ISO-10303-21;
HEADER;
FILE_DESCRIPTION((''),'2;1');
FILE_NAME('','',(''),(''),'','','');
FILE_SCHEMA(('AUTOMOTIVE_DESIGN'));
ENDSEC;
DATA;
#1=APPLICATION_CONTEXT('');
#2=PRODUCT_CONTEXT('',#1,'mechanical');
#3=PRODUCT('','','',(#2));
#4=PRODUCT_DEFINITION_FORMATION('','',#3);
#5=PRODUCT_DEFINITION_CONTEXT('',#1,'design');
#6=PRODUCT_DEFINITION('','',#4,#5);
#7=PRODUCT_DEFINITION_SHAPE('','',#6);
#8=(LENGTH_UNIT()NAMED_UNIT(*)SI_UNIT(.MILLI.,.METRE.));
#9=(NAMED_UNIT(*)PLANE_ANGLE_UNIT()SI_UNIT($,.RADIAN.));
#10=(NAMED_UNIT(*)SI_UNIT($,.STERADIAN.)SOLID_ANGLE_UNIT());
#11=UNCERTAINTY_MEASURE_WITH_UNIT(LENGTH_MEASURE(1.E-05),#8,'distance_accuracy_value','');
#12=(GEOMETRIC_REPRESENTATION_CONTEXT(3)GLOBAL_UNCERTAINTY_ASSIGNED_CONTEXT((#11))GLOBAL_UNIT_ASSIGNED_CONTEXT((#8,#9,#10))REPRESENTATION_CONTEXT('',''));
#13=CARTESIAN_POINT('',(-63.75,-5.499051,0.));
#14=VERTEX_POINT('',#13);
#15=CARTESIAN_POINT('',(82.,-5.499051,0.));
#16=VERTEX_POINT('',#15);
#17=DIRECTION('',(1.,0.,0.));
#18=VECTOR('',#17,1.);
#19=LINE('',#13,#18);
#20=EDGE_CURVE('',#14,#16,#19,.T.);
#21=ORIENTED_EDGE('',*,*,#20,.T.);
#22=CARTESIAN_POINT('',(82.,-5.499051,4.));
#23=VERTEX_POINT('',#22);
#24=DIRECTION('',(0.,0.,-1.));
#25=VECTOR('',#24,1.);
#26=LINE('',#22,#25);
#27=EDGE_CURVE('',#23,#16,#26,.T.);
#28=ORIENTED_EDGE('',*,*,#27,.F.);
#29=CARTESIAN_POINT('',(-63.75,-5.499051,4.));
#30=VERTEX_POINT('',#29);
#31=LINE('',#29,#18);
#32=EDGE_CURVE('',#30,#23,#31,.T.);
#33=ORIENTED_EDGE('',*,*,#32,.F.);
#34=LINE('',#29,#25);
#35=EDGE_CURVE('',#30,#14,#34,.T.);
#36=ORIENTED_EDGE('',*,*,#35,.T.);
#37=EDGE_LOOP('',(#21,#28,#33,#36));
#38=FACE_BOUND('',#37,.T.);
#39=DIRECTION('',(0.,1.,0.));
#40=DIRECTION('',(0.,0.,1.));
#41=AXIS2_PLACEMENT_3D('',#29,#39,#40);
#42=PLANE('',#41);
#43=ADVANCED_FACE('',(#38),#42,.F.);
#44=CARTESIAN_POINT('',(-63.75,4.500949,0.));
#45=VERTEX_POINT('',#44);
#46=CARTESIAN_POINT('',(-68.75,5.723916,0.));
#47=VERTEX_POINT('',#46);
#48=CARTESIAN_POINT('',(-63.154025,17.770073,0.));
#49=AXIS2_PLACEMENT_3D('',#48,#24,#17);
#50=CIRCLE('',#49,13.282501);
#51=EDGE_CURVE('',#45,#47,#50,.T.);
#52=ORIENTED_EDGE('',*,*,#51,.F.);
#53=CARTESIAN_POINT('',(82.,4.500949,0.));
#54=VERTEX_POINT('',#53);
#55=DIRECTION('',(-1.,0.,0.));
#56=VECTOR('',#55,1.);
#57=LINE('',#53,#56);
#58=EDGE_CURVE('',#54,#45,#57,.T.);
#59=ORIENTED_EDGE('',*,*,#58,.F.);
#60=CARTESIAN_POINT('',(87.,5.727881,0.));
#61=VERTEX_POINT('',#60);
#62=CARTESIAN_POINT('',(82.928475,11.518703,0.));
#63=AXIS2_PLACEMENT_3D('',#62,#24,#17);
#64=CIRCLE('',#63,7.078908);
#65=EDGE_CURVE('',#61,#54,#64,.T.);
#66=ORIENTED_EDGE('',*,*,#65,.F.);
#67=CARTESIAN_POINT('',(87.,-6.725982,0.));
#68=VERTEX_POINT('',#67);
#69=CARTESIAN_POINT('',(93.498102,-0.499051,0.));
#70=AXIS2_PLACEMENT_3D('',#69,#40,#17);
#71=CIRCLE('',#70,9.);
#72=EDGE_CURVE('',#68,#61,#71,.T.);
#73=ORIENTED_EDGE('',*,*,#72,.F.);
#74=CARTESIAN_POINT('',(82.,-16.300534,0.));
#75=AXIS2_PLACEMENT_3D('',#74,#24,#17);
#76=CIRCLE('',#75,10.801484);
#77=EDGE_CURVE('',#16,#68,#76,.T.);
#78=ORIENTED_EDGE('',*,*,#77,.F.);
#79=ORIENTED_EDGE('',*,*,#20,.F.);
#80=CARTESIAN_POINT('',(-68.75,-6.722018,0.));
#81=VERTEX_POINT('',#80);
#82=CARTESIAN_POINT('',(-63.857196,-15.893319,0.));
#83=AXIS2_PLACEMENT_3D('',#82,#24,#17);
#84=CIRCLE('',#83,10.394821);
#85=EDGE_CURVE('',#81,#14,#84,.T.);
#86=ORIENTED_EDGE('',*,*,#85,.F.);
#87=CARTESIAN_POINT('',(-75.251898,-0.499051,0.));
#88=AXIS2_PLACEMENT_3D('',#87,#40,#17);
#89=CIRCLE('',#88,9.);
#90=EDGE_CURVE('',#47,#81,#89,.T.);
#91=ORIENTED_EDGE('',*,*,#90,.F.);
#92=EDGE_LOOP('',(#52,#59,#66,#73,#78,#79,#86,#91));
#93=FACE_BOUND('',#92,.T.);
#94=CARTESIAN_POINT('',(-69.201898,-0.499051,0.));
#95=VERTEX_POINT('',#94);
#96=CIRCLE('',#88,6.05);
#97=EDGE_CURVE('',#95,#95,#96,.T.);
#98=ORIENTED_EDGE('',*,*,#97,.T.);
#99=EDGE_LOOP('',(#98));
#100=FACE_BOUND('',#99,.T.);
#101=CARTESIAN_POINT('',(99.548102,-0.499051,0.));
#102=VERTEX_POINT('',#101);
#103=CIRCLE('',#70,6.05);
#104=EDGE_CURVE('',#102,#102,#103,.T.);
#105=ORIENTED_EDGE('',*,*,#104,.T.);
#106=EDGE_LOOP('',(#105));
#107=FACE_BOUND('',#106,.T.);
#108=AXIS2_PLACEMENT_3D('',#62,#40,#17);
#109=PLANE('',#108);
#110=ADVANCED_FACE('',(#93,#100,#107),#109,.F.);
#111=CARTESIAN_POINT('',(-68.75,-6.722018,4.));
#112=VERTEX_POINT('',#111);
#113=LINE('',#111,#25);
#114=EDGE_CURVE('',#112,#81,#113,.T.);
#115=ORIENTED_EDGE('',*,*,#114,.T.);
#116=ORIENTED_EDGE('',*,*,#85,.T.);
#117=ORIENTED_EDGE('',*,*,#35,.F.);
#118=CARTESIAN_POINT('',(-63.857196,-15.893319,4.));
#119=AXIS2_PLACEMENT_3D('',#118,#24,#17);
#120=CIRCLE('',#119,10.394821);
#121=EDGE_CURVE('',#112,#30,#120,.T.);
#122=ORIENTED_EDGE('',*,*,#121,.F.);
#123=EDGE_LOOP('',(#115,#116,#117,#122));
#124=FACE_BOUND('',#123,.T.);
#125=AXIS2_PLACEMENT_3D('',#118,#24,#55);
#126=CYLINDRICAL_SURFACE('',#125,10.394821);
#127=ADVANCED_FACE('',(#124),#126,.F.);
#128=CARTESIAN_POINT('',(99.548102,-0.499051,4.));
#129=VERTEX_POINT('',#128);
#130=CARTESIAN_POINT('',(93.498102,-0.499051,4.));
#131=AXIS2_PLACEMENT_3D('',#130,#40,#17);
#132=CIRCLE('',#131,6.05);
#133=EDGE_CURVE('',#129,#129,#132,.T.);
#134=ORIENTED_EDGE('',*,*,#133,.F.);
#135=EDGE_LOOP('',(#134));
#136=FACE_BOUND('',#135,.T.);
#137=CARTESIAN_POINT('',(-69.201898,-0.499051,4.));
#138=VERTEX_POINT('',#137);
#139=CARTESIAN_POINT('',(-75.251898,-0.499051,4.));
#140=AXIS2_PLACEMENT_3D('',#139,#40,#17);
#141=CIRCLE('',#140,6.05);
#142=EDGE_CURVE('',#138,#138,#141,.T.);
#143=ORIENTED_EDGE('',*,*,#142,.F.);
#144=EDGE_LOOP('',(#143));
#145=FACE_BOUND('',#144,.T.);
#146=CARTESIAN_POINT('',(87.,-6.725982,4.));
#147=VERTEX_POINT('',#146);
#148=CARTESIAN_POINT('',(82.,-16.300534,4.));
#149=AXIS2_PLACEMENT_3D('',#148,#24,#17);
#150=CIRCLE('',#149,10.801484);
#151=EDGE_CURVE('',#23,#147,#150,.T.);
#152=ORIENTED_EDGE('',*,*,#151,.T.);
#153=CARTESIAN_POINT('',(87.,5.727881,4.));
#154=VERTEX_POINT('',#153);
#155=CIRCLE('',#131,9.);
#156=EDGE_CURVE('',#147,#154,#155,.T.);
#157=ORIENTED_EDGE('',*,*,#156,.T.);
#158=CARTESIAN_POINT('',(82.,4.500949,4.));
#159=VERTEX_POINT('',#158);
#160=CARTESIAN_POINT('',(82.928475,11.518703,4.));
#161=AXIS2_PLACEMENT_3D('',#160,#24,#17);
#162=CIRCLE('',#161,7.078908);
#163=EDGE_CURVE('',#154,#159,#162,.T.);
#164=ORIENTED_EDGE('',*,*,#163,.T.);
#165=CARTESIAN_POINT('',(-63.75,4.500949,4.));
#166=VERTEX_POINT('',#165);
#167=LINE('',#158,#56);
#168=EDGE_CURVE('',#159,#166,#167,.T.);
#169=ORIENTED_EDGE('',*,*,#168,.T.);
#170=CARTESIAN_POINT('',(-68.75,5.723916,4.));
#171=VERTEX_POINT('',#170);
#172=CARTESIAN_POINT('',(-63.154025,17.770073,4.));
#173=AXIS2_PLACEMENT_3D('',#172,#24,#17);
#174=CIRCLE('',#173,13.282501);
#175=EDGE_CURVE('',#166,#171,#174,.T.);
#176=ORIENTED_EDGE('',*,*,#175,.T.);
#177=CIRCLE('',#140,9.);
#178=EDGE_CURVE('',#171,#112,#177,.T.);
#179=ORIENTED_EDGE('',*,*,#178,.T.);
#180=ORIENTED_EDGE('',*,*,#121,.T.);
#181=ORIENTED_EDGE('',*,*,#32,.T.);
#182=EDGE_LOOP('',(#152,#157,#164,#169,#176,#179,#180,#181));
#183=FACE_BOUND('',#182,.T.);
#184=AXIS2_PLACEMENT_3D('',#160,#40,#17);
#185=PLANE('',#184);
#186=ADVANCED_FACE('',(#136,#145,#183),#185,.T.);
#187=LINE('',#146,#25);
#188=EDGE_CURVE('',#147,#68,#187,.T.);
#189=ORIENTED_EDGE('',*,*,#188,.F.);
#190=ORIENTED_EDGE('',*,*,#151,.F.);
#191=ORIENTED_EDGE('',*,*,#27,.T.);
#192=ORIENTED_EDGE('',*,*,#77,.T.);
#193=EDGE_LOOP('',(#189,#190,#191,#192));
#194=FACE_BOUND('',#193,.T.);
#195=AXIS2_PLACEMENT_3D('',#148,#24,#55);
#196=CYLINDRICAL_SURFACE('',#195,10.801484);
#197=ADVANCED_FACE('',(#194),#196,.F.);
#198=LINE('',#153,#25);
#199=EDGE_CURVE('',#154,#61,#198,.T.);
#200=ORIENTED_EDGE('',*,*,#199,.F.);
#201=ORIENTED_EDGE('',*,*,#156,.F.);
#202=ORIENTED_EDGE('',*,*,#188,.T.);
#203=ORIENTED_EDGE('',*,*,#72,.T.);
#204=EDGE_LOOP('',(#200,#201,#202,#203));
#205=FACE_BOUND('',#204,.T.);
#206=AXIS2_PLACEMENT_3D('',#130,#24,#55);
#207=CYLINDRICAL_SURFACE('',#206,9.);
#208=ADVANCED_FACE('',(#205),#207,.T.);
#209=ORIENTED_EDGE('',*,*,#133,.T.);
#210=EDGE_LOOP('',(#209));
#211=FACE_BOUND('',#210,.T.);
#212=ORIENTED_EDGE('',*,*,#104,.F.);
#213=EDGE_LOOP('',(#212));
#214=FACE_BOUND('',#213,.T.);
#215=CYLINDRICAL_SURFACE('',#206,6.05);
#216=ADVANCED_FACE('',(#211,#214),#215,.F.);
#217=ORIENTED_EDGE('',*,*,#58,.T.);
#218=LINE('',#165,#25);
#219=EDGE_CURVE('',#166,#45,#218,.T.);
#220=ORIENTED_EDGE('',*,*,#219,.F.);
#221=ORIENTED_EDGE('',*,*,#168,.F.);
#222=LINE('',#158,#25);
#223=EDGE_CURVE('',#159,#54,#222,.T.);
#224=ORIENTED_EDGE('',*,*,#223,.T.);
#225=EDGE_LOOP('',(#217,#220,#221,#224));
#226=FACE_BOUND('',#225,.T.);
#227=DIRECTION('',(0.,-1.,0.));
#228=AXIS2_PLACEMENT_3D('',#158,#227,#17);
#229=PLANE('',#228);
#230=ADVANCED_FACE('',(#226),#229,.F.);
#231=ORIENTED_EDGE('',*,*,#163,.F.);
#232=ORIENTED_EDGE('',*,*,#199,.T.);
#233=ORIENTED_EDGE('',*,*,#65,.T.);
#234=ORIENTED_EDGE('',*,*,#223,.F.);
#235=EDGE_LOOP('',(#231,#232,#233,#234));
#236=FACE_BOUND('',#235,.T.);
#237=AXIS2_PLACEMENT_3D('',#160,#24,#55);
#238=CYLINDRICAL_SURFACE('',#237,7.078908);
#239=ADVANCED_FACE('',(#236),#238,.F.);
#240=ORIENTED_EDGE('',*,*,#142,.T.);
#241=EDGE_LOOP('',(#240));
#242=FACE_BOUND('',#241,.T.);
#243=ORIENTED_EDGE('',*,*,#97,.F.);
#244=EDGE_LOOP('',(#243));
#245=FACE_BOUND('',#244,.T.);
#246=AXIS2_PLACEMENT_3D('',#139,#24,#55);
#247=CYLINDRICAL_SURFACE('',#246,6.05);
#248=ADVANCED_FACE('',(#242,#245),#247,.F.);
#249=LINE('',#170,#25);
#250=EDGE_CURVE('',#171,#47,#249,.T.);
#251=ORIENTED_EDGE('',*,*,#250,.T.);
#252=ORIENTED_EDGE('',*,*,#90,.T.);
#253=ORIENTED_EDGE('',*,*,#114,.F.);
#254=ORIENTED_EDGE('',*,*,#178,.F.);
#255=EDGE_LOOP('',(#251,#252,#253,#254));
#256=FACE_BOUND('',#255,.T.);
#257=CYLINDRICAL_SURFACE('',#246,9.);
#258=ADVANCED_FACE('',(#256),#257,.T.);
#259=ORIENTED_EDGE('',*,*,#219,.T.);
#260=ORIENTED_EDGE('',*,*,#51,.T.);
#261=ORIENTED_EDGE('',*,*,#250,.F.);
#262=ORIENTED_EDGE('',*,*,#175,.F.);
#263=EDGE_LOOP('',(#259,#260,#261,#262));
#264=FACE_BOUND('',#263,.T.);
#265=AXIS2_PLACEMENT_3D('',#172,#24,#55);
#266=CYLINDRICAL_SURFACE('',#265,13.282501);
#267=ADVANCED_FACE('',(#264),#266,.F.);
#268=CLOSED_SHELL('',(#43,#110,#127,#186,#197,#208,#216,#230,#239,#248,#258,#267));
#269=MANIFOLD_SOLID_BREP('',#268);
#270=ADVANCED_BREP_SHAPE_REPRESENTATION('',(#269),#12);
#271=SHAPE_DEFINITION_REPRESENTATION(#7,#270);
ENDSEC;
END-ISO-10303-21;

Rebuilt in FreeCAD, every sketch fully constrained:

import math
import FreeCAD as App
import Part
import Sketcher

doc = App.newDocument("Part")
body = doc.addObject("PartDesign::Body", "Body")

# Sketch on XY plane
sketch1 = doc.addObject("Sketcher::SketchObject", "Sketch")
body.addObject(sketch1)
sketch1.AttachmentSupport = (doc.XY_Plane, [""])
sketch1.MapMode = "FlatFace"
sketch1.addGeometry([
    Part.LineSegment(App.Vector(82, 4.500949, 0), App.Vector(-63.75, 4.500949, 0)),  # 0
    Part.ArcOfCircle(Part.Circle(App.Vector(-63.154025, 17.770073, 0), App.Vector(0, 0, 1), 13.282501), math.radians(-114.916962), math.radians(-92.571679)),  # 1
    Part.ArcOfCircle(Part.Circle(App.Vector(-75.251898, -0.499051, 0), App.Vector(0, 0, 1), 9), math.radians(43.744266), math.radians(316.255734)),  # 2
    Part.ArcOfCircle(Part.Circle(App.Vector(-63.857196, -15.893319, 0), App.Vector(0, 0, 1), 10.394821), math.radians(89.409132), math.radians(118.079508)),  # 3
    Part.LineSegment(App.Vector(-63.75, -5.499051, 0), App.Vector(82, -5.499051, 0)),  # 4
    Part.ArcOfCircle(Part.Circle(App.Vector(82, -16.300534, 0), App.Vector(0, 0, 1), 10.801484), math.radians(62.425642), math.radians(90)),  # 5
    Part.ArcOfCircle(Part.Circle(App.Vector(93.498102, -0.499051, 0), App.Vector(0, 0, 1), 9), math.radians(-136.220787), math.radians(136.220787)),  # 6
    Part.ArcOfCircle(Part.Circle(App.Vector(82.928475, 11.518703, 0), App.Vector(0, 0, 1), 7.078908), math.radians(-97.536678), math.radians(-54.888965)),  # 7
    Part.Circle(App.Vector(-75.251898, -0.499051, 0), App.Vector(0, 0, 1), 6.05),  # 8
    Part.Circle(App.Vector(93.498102, -0.499051, 0), App.Vector(0, 0, 1), 6.05),  # 9
], False)
sketch1.addConstraint([
    Sketcher.Constraint("Coincident", 0, 2, 1, 2),
    Sketcher.Constraint("Coincident", 1, 1, 2, 1),
    Sketcher.Constraint("Coincident", 2, 2, 3, 2),
    Sketcher.Constraint("Coincident", 3, 1, 4, 1),
    Sketcher.Constraint("Tangent", 4, 2, 5, 2),
    Sketcher.Constraint("Coincident", 5, 1, 6, 1),
    Sketcher.Constraint("Coincident", 6, 2, 7, 2),
    Sketcher.Constraint("Coincident", 7, 1, 0, 1),
    Sketcher.Constraint("Horizontal", 0),
    Sketcher.Constraint("Horizontal", 4),
    Sketcher.Constraint("Coincident", 8, 3, 2, 3),
    Sketcher.Constraint("Coincident", 9, 3, 6, 3),
    Sketcher.Constraint("Equal", 2, 6),
    Sketcher.Constraint("Equal", 8, 9),
    Sketcher.Constraint("Horizontal", 2, 3, 6, 3),
    Sketcher.Constraint("Vertical", 1, 1, 2, 2),
    Sketcher.Constraint("Vertical", 0, 2, 3, 1),
    Sketcher.Constraint("Vertical", 5, 1, 6, 2),
    Sketcher.Constraint("Vertical", 4, 2, 7, 1),
    Sketcher.Constraint("Radius", 2, 9.0),
    Sketcher.Constraint("Diameter", 8, 12.1),
    Sketcher.Constraint("DistanceX", -1, 1, 5, 3, 82.0),
    Sketcher.Constraint("DistanceX", -1, 1, 5, 1, 87.0),
    Sketcher.Constraint("DistanceY", 2, 3, 0, 2, 5.0),
    Sketcher.Constraint("DistanceX", 1, 1, 0, 2, 5.0),
    Sketcher.Constraint("DistanceY", 3, 1, 0, 2, 10.0),
    Sketcher.Constraint("DistanceX", 0, 2, 0, 1, 145.75),
    Sketcher.Constraint("Radius", 1, 13.282501),
    Sketcher.Constraint("Radius", 3, 10.394821),
    Sketcher.Constraint("DistanceX", 2, 3, 6, 3, 168.75),
    Sketcher.Constraint("Radius", 5, 10.801484),
    Sketcher.Constraint("Radius", 7, 7.078908),
    Sketcher.Constraint("DistanceY", 2, 3, -1, 1, 0.499051),
])
pad1 = doc.addObject("PartDesign::Pad", "Pad")
body.addObject(pad1)
pad1.Profile = sketch1
pad1.Length = 4

doc.recompute()
